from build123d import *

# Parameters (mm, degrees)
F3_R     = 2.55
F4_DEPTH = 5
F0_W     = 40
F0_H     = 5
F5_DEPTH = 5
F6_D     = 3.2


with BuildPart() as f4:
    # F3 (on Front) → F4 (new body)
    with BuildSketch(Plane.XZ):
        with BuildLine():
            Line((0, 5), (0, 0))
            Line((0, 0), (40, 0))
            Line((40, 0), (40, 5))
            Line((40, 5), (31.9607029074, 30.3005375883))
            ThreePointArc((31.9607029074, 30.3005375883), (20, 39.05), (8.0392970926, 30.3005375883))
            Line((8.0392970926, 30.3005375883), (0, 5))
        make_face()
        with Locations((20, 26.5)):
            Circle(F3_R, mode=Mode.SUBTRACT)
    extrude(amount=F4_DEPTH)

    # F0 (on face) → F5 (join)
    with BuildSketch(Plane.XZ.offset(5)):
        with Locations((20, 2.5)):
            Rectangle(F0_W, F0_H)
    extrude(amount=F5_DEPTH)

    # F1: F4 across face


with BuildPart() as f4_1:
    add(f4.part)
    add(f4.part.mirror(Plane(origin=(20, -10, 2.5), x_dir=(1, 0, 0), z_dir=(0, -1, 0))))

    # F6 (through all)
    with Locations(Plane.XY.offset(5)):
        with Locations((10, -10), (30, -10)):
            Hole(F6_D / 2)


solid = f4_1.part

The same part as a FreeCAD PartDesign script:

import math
import FreeCAD as App
import Part
import Sketcher
Q = App.Units.Quantity

doc = App.newDocument("Part")
body = doc.addObject("PartDesign::Body", "Body")

sketch1 = body.newObject("Sketcher::SketchObject", "Sketch")
sketch1.AttachmentSupport = (doc.getObject("XZ_Plane"), [""])
sketch1.MapMode = "FlatFace"
sketch1.addGeometry(Part.LineSegment(App.Vector(0, 5, 0), App.Vector(0, 0, 0)), False)
sketch1.addGeometry(Part.LineSegment(App.Vector(0, 0, 0), App.Vector(40, 0, 0)), False)
sketch1.addGeometry(Part.LineSegment(App.Vector(40, 0, 0), App.Vector(40, 5, 0)), False)
sketch1.addGeometry(Part.LineSegment(App.Vector(40, 5, 0), App.Vector(32, 30.3, 0)), False)
sketch1.addGeometry(Part.ArcOfCircle(Part.Circle(App.Vector(20, 26.5, 0), App.Vector(0, 0, 1), 12.6), math.radians(18), math.radians(162)), False)
sketch1.addGeometry(Part.LineSegment(App.Vector(8, 30.3, 0), App.Vector(0, 5, 0)), False)
sketch1.addGeometry(Part.Circle(App.Vector(20, 26.5, 0), App.Vector(0, 0, 1), 2.5), False)
sketch1.addConstraint(Sketcher.Constraint("Coincident", 0, 2, 1, 1))
sketch1.addConstraint(Sketcher.Constraint("Coincident", 1, 2, 2, 1))
sketch1.addConstraint(Sketcher.Constraint("Coincident", 2, 2, 3, 1))
sketch1.addConstraint(Sketcher.Constraint("Tangent", 3, 2, 4, 1))
sketch1.addConstraint(Sketcher.Constraint("Tangent", 4, 2, 5, 1))
sketch1.addConstraint(Sketcher.Constraint("Coincident", 5, 2, 0, 1))
sketch1.addConstraint(Sketcher.Constraint("Vertical", 0))
sketch1.addConstraint(Sketcher.Constraint("Horizontal", 1))
sketch1.addConstraint(Sketcher.Constraint("Vertical", 2))
sketch1.addConstraint(Sketcher.Constraint("Coincident", 0, 2, -1, 1))
sketch1.addConstraint(Sketcher.Constraint("Coincident", 6, 3, 4, 3))
sketch1.addConstraint(Sketcher.Constraint("Horizontal", 3, 2, 4, 2))
sketch1.addConstraint(Sketcher.Constraint("Horizontal", 2, 2, 5, 2))
sketch1.addConstraint(Sketcher.Constraint("Diameter", 6, Q("5.1 mm")))
sketch1.addConstraint(Sketcher.Constraint("DistanceX", 1, 1, 1, 2, Q("40 mm")))
sketch1.addConstraint(Sketcher.Constraint("DistanceY", 0, 2, 0, 1, Q("5 mm")))
sketch1.addConstraint(Sketcher.Constraint("Radius", 4, Q("12.55 mm")))
sketch1.addConstraint(Sketcher.Constraint("DistanceY", -1, 1, 4, 3, Q("26.5 mm")))
pad1 = body.newObject("PartDesign::Pad", "Pad")
pad1.Profile = sketch1
pad1.Length = 5

sketch2 = body.newObject("Sketcher::SketchObject", "Sketch001")
sketch2.AttachmentSupport = (doc.getObject("XZ_Plane"), [""])
sketch2.MapMode = "FlatFace"
sketch2.AttachmentOffset = App.Placement(App.Vector(0, 0, 5), App.Rotation())
sketch2.addGeometry(Part.LineSegment(App.Vector(0, 5, 0), App.Vector(0, 0, 0)), False)
sketch2.addGeometry(Part.LineSegment(App.Vector(0, 0, 0), App.Vector(40, 0, 0)), False)
sketch2.addGeometry(Part.LineSegment(App.Vector(40, 0, 0), App.Vector(40, 5, 0)), False)
sketch2.addGeometry(Part.LineSegment(App.Vector(40, 5, 0), App.Vector(0, 5, 0)), False)
sketch2.addConstraint(Sketcher.Constraint("Coincident", 0, 2, 1, 1))
sketch2.addConstraint(Sketcher.Constraint("Coincident", 1, 2, 2, 1))
sketch2.addConstraint(Sketcher.Constraint("Coincident", 2, 2, 3, 1))
sketch2.addConstraint(Sketcher.Constraint("Coincident", 3, 2, 0, 1))
sketch2.addConstraint(Sketcher.Constraint("Vertical", 0))
sketch2.addConstraint(Sketcher.Constraint("Horizontal", 1))
sketch2.addConstraint(Sketcher.Constraint("Vertical", 2))
sketch2.addConstraint(Sketcher.Constraint("Horizontal", 3))
sketch2.addConstraint(Sketcher.Constraint("Coincident", 0, 2, -1, 1))
sketch2.addConstraint(Sketcher.Constraint("DistanceX", 1, 1, 1, 2, Q("40 mm")))
sketch2.addConstraint(Sketcher.Constraint("DistanceY", 0, 2, 0, 1, Q("5 mm")))
pad2 = body.newObject("PartDesign::Pad", "Pad001")
pad2.Profile = sketch2
pad2.Length = 5
body2 = doc.addObject("PartDesign::Body", "Body001")
doc.recompute()

body2.BaseFeature = body
doc.recompute()

mirroring = doc.addObject("Part::Mirroring", "Mirroring")
mirroring.Source = body
mirroring.Base = App.Vector(20, -10, 2.5)
mirroring.Normal = App.Vector(0, -1, 0)
body3 = doc.addObject("PartDesign::Body", "Body002")
body3.BaseFeature = mirroring
boolean = body2.newObject("PartDesign::Boolean", "Boolean")
boolean.Type = "Fuse"
boolean.addObjects([body3])
doc.recompute()

sketch3 = body2.newObject("Sketcher::SketchObject", "Sketch002")
sketch3.AttachmentSupport = (doc.getObject("XY_Plane001"), [""])
sketch3.MapMode = "FlatFace"
sketch3.AttachmentOffset = App.Placement(App.Vector(0, 0, 5), App.Rotation())
sketch3.addGeometry(Part.Circle(App.Vector(10, -10, 0), App.Vector(0, 0, 1), 1.6), False)
sketch3.addGeometry(Part.Circle(App.Vector(30, -10, 0), App.Vector(0, 0, 1), 1.6), False)
sketch3.addConstraint(Sketcher.Constraint("Equal", 0, 1))
sketch3.addConstraint(Sketcher.Constraint("Horizontal", 0, 3, 1, 3))
sketch3.addConstraint(Sketcher.Constraint("Diameter", 0, Q("3.2 mm")))
sketch3.addConstraint(Sketcher.Constraint("DistanceX", -1, 1, 0, 3, Q("10 mm")))
sketch3.addConstraint(Sketcher.Constraint("DistanceY", 0, 3, -1, 1, Q("10 mm")))
sketch3.addConstraint(Sketcher.Constraint("DistanceX", -1, 1, 1, 3, Q("30 mm")))
doc.recompute()
hole = body2.newObject("PartDesign::Hole", "Hole")
hole.Profile = sketch3
hole.ThreadType = "None"
hole.Diameter = 3.2
hole.DepthType = "ThroughAll"
mirroring.Visibility = False

doc.recompute()
